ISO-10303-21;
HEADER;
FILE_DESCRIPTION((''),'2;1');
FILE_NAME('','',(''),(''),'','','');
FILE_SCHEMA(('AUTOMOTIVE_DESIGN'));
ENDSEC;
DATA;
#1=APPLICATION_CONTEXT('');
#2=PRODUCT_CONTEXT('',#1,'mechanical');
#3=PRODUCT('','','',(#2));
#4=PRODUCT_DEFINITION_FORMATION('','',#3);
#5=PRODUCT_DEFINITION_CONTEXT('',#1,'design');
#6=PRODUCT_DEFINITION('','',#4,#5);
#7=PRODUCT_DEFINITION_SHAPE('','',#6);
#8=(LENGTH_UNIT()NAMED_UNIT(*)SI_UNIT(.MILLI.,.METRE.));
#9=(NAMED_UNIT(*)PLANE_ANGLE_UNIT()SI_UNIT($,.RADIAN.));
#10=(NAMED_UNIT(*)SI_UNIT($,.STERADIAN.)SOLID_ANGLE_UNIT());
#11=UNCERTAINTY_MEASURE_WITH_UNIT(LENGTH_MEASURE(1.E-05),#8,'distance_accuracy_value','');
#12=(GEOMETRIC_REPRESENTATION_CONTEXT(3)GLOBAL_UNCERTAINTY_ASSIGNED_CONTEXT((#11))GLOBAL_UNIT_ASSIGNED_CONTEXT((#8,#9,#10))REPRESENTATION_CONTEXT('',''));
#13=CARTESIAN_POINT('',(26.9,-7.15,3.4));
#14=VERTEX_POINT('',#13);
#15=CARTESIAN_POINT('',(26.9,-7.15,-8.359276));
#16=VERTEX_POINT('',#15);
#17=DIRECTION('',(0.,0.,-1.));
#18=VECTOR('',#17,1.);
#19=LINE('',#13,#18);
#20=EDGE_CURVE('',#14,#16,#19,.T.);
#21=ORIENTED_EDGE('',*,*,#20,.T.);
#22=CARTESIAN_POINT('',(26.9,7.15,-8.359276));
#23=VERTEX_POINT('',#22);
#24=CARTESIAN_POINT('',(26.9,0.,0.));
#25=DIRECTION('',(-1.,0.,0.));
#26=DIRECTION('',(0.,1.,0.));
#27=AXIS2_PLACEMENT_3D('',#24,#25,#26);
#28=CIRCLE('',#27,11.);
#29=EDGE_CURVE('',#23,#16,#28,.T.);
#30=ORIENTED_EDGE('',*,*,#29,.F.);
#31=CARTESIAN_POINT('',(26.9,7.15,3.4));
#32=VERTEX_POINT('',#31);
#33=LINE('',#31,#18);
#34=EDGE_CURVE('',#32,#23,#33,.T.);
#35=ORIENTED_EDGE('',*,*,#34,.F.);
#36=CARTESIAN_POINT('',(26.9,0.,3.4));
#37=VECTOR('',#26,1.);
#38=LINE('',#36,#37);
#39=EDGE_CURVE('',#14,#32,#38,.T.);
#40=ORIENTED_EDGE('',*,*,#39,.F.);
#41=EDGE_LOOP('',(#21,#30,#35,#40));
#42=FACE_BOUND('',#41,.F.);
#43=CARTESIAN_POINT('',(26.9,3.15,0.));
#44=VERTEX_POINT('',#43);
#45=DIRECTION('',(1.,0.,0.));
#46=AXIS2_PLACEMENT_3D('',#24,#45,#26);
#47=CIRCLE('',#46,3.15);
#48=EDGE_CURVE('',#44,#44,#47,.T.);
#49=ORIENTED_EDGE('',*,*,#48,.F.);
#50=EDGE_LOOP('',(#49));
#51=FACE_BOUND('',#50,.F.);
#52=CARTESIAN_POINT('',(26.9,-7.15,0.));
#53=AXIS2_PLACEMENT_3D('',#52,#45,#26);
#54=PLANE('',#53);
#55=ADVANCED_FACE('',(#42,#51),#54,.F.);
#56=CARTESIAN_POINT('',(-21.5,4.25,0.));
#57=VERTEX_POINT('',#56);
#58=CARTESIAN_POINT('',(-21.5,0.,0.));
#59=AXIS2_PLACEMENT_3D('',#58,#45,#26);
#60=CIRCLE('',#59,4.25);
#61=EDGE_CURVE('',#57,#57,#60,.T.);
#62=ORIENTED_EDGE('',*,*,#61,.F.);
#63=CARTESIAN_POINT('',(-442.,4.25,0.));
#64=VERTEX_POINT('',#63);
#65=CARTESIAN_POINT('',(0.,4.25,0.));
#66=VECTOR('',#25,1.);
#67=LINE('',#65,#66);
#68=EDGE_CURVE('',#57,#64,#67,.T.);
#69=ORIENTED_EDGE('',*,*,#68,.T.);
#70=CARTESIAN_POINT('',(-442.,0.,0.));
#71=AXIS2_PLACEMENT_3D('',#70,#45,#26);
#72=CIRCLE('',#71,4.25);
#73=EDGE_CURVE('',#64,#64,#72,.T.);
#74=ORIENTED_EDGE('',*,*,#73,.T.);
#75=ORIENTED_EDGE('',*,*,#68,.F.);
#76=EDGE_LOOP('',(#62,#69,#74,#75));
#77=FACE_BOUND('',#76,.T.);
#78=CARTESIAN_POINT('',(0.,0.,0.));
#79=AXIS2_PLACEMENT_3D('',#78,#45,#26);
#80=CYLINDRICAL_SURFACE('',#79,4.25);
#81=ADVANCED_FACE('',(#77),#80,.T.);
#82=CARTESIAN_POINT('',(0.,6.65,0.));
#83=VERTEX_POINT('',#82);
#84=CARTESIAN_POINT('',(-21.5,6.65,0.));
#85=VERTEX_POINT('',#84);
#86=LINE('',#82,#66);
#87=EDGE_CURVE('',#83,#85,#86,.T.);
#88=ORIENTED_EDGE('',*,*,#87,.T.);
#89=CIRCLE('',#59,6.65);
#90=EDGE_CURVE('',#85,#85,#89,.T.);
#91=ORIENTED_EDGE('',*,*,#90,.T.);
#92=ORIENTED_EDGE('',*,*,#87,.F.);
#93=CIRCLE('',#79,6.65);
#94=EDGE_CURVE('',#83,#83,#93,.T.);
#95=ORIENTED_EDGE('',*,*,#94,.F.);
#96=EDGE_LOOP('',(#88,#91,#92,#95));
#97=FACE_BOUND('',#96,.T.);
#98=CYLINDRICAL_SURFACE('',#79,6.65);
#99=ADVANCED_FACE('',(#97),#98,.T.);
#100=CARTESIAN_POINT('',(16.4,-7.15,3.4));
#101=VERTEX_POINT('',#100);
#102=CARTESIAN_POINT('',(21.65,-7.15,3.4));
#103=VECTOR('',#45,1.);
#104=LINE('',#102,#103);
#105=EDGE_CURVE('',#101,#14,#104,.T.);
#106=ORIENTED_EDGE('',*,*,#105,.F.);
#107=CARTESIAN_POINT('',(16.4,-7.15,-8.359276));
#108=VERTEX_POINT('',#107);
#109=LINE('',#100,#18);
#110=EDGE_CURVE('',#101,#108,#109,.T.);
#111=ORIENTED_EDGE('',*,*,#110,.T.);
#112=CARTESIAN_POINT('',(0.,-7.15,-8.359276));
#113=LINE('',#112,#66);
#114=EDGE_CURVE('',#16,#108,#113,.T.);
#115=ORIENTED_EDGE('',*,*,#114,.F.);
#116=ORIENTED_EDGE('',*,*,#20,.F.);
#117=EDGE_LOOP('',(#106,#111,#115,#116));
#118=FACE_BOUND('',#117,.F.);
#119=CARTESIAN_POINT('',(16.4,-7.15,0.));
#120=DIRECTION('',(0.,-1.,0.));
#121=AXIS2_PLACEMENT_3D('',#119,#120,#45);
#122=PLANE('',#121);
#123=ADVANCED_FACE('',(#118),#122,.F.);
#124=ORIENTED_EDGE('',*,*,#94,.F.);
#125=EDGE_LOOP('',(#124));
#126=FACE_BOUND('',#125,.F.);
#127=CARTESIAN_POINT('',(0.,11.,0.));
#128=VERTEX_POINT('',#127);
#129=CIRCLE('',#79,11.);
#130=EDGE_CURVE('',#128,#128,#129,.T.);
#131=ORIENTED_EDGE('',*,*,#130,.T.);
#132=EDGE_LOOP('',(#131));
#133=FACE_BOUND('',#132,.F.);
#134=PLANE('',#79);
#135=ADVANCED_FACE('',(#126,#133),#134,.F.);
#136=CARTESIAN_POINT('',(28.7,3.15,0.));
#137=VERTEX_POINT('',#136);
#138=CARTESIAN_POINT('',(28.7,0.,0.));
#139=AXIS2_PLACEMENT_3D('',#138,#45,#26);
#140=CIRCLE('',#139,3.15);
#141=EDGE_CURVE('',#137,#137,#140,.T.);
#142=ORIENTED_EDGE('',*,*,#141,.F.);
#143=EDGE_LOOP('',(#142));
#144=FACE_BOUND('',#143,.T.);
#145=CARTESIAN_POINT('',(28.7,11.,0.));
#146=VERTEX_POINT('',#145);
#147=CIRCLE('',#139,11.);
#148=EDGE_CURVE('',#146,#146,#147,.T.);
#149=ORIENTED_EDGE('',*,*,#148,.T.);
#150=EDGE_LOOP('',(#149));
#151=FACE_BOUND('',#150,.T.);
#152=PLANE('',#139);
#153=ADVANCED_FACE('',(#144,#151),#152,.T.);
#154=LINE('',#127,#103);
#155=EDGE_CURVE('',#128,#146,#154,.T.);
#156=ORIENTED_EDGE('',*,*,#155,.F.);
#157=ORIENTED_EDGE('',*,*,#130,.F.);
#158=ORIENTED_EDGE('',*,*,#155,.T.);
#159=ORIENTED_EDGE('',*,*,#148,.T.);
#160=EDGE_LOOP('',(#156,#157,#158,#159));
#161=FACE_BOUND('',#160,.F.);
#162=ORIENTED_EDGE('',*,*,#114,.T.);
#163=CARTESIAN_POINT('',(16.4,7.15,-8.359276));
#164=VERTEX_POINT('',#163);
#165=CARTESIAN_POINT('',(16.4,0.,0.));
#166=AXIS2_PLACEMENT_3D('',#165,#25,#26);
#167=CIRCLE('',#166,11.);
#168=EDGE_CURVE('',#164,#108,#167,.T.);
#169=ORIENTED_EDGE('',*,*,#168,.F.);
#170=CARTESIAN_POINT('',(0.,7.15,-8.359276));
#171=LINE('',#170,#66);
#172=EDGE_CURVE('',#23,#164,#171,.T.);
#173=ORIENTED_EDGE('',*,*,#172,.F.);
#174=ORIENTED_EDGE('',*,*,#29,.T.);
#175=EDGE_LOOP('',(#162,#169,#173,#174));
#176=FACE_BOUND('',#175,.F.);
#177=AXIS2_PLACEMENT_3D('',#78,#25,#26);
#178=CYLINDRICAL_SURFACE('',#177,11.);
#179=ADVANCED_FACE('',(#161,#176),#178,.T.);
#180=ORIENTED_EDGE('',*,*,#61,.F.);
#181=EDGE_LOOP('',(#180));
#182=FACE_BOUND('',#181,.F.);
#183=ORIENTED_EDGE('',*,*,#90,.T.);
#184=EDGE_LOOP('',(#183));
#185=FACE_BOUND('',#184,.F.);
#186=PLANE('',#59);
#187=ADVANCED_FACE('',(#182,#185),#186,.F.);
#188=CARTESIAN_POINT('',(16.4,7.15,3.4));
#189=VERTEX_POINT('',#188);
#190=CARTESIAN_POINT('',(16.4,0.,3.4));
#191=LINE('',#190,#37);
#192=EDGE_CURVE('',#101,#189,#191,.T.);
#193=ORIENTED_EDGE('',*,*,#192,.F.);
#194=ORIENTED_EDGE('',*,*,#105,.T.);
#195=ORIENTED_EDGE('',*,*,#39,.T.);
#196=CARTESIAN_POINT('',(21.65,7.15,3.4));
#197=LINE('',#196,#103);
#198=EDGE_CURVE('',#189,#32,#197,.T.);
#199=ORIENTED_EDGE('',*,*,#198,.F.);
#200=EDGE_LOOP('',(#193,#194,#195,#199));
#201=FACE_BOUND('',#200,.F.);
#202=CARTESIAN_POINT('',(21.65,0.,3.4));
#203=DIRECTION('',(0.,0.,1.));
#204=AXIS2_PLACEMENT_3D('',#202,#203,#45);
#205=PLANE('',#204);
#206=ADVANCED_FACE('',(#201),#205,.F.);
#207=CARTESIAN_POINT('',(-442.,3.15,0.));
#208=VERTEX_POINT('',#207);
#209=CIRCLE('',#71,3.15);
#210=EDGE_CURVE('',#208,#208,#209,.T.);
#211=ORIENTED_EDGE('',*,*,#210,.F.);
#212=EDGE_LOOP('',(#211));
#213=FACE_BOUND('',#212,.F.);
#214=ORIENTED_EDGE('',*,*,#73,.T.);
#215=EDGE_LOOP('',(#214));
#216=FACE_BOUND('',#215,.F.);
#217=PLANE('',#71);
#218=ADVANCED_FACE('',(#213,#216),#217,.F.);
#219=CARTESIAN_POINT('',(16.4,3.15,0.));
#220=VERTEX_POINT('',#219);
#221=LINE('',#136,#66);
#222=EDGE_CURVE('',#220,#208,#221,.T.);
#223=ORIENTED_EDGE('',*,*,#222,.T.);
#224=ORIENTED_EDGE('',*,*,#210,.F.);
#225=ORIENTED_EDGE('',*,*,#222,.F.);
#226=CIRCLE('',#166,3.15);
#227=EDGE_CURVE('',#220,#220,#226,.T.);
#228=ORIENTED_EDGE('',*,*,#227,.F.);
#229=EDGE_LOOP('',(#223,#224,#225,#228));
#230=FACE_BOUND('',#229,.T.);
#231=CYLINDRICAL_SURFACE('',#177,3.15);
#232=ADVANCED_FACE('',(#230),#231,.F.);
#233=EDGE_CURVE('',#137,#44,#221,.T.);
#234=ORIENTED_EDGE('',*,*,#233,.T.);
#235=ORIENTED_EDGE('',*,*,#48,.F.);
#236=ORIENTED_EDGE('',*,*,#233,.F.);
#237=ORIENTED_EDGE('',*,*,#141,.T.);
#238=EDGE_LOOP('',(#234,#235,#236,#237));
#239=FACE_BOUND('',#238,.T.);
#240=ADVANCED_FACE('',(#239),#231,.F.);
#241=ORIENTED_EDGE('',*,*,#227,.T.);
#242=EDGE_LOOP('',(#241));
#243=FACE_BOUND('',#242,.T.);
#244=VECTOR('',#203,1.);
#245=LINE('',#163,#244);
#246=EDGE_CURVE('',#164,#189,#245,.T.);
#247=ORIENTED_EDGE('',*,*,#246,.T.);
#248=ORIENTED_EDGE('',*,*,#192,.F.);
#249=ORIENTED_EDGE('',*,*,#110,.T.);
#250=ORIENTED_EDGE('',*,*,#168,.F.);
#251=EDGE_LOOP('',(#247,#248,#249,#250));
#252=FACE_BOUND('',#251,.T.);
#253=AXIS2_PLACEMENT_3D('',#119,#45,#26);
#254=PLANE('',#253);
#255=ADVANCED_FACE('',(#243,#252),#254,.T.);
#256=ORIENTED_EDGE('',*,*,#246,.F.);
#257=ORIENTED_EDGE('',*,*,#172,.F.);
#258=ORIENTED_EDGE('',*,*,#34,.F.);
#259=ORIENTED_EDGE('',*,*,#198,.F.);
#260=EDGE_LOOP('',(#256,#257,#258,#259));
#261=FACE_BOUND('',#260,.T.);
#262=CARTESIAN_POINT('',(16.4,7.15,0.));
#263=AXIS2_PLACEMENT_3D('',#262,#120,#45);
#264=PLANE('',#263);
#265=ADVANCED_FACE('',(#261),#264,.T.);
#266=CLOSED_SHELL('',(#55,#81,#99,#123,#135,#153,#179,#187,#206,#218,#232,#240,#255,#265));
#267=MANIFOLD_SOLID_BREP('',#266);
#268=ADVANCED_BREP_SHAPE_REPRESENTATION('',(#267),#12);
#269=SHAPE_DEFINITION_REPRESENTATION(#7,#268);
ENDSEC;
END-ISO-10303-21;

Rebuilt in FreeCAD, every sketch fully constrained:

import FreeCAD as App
import Part
import Sketcher

V = App.Vector
Q = App.Units.Quantity

doc = App.newDocument("Part")
body = doc.addObject("PartDesign::Body", "Body")

sketch1 = body.newObject("Sketcher::SketchObject", "Sketch")
sketch1.AttachmentSupport = (doc.getObject("YZ_Plane"), [""])
sketch1.MapMode = "FlatFace"
sketch1.addGeometry(Part.Circle(V(0, 0, 0), V(0, 0, 1), 4.2), False)
sketch1.addGeometry(Part.Circle(V(0, 0, 0), V(0, 0, 1), 3.1), False)
sketch1.addConstraint(Sketcher.Constraint("Coincident", 0, 3, -1, 1))
sketch1.addConstraint(Sketcher.Constraint("Coincident", 1, 3, -1, 1))
sketch1.addConstraint(Sketcher.Constraint("Diameter", 0, Q("8.5 mm")))
sketch1.addConstraint(Sketcher.Constraint("Diameter", 1, Q("6.3 mm")))
pad1 = body.newObject("PartDesign::Pad", "Pad")
pad1.Profile = sketch1
pad1.Length = 442
pad1.Reversed = True

sketch2 = body.newObject("Sketcher::SketchObject", "Sketch001")
sketch2.AttachmentSupport = (doc.getObject("YZ_Plane"), [""])
sketch2.MapMode = "FlatFace"
sketch2.addGeometry(Part.Circle(V(0, 0, 0), V(0, 0, 1), 6.7), False)
sketch2.addGeometry(Part.Circle(V(0, 0, 0), V(0, 0, 1), 4.2), False)
sketch2.addConstraint(Sketcher.Constraint("Coincident", 0, 3, -1, 1))
sketch2.addConstraint(Sketcher.Constraint("Coincident", 1, 3, -1, 1))
sketch2.addConstraint(Sketcher.Constraint("Diameter", 0, Q("13.3 mm")))
sketch2.addConstraint(Sketcher.Constraint("Diameter", 1, Q("8.5 mm")))
pad2 = body.newObject("PartDesign::Pad", "Pad001")
pad2.Profile = sketch2
pad2.Length = 21.5
pad2.Reversed = True

sketch3 = body.newObject("Sketcher::SketchObject", "Sketch002")
sketch3.AttachmentSupport = (doc.getObject("YZ_Plane"), [""])
sketch3.MapMode = "FlatFace"
sketch3.addGeometry(Part.Circle(V(0, 0, 0), V(0, 0, 1), 11), False)
sketch3.addGeometry(Part.Circle(V(0, 0, 0), V(0, 0, 1), 3.1), False)
sketch3.addConstraint(Sketcher.Constraint("Coincident", 0, 3, -1, 1))
sketch3.addConstraint(Sketcher.Constraint("Coincident", 1, 3, -1, 1))
sketch3.addConstraint(Sketcher.Constraint("Diameter", 0, Q("22 mm")))
sketch3.addConstraint(Sketcher.Constraint("Diameter", 1, Q("6.3 mm")))
pad3 = body.newObject("PartDesign::Pad", "Pad002")
pad3.Profile = sketch3
pad3.Length = 28.7

sketch4 = body.newObject("Sketcher::SketchObject", "Sketch003")
sketch4.AttachmentSupport = (doc.getObject("XY_Plane"), [""])
sketch4.MapMode = "FlatFace"
sketch4.addGeometry(Part.LineSegment(V(16, 7, 0), V(16, -7, 0)), False)
sketch4.addGeometry(Part.LineSegment(V(16, -7, 0), V(27, -7, 0)), False)
sketch4.addGeometry(Part.LineSegment(V(27, -7, 0), V(27, 7, 0)), False)
sketch4.addGeometry(Part.LineSegment(V(27, 7, 0), V(16, 7, 0)), False)
sketch4.addConstraint(Sketcher.Constraint("Coincident", 0, 2, 1, 1))
sketch4.addConstraint(Sketcher.Constraint("Coincident", 1, 2, 2, 1))
sketch4.addConstraint(Sketcher.Constraint("Coincident", 2, 2, 3, 1))
sketch4.addConstraint(Sketcher.Constraint("Coincident", 3, 2, 0, 1))
sketch4.addConstraint(Sketcher.Constraint("Vertical", 0))
sketch4.addConstraint(Sketcher.Constraint("Horizontal", 1))
sketch4.addConstraint(Sketcher.Constraint("Vertical", 2))
sketch4.addConstraint(Sketcher.Constraint("Horizontal", 3))
sketch4.addConstraint(Sketcher.Constraint("DistanceX", 1, 1, 1, 2, Q("10.5 mm")))
sketch4.addConstraint(Sketcher.Constraint("DistanceY", 0, 2, 0, 1, Q("14.3 mm")))
sketch4.addConstraint(Sketcher.Constraint("DistanceX", -1, 1, 0, 2, Q("16.4 mm")))
sketch4.addConstraint(Sketcher.Constraint("DistanceY", 0, 2, -1, 1, Q("7.15 mm")))
pocket1 = body.newObject("PartDesign::Pocket", "Pocket")
pocket1.Profile = sketch4
pocket1.Type = "TwoLengths"
pocket1.Length = 11.001
pocket1.Length2 = 3.4

doc.recompute()
